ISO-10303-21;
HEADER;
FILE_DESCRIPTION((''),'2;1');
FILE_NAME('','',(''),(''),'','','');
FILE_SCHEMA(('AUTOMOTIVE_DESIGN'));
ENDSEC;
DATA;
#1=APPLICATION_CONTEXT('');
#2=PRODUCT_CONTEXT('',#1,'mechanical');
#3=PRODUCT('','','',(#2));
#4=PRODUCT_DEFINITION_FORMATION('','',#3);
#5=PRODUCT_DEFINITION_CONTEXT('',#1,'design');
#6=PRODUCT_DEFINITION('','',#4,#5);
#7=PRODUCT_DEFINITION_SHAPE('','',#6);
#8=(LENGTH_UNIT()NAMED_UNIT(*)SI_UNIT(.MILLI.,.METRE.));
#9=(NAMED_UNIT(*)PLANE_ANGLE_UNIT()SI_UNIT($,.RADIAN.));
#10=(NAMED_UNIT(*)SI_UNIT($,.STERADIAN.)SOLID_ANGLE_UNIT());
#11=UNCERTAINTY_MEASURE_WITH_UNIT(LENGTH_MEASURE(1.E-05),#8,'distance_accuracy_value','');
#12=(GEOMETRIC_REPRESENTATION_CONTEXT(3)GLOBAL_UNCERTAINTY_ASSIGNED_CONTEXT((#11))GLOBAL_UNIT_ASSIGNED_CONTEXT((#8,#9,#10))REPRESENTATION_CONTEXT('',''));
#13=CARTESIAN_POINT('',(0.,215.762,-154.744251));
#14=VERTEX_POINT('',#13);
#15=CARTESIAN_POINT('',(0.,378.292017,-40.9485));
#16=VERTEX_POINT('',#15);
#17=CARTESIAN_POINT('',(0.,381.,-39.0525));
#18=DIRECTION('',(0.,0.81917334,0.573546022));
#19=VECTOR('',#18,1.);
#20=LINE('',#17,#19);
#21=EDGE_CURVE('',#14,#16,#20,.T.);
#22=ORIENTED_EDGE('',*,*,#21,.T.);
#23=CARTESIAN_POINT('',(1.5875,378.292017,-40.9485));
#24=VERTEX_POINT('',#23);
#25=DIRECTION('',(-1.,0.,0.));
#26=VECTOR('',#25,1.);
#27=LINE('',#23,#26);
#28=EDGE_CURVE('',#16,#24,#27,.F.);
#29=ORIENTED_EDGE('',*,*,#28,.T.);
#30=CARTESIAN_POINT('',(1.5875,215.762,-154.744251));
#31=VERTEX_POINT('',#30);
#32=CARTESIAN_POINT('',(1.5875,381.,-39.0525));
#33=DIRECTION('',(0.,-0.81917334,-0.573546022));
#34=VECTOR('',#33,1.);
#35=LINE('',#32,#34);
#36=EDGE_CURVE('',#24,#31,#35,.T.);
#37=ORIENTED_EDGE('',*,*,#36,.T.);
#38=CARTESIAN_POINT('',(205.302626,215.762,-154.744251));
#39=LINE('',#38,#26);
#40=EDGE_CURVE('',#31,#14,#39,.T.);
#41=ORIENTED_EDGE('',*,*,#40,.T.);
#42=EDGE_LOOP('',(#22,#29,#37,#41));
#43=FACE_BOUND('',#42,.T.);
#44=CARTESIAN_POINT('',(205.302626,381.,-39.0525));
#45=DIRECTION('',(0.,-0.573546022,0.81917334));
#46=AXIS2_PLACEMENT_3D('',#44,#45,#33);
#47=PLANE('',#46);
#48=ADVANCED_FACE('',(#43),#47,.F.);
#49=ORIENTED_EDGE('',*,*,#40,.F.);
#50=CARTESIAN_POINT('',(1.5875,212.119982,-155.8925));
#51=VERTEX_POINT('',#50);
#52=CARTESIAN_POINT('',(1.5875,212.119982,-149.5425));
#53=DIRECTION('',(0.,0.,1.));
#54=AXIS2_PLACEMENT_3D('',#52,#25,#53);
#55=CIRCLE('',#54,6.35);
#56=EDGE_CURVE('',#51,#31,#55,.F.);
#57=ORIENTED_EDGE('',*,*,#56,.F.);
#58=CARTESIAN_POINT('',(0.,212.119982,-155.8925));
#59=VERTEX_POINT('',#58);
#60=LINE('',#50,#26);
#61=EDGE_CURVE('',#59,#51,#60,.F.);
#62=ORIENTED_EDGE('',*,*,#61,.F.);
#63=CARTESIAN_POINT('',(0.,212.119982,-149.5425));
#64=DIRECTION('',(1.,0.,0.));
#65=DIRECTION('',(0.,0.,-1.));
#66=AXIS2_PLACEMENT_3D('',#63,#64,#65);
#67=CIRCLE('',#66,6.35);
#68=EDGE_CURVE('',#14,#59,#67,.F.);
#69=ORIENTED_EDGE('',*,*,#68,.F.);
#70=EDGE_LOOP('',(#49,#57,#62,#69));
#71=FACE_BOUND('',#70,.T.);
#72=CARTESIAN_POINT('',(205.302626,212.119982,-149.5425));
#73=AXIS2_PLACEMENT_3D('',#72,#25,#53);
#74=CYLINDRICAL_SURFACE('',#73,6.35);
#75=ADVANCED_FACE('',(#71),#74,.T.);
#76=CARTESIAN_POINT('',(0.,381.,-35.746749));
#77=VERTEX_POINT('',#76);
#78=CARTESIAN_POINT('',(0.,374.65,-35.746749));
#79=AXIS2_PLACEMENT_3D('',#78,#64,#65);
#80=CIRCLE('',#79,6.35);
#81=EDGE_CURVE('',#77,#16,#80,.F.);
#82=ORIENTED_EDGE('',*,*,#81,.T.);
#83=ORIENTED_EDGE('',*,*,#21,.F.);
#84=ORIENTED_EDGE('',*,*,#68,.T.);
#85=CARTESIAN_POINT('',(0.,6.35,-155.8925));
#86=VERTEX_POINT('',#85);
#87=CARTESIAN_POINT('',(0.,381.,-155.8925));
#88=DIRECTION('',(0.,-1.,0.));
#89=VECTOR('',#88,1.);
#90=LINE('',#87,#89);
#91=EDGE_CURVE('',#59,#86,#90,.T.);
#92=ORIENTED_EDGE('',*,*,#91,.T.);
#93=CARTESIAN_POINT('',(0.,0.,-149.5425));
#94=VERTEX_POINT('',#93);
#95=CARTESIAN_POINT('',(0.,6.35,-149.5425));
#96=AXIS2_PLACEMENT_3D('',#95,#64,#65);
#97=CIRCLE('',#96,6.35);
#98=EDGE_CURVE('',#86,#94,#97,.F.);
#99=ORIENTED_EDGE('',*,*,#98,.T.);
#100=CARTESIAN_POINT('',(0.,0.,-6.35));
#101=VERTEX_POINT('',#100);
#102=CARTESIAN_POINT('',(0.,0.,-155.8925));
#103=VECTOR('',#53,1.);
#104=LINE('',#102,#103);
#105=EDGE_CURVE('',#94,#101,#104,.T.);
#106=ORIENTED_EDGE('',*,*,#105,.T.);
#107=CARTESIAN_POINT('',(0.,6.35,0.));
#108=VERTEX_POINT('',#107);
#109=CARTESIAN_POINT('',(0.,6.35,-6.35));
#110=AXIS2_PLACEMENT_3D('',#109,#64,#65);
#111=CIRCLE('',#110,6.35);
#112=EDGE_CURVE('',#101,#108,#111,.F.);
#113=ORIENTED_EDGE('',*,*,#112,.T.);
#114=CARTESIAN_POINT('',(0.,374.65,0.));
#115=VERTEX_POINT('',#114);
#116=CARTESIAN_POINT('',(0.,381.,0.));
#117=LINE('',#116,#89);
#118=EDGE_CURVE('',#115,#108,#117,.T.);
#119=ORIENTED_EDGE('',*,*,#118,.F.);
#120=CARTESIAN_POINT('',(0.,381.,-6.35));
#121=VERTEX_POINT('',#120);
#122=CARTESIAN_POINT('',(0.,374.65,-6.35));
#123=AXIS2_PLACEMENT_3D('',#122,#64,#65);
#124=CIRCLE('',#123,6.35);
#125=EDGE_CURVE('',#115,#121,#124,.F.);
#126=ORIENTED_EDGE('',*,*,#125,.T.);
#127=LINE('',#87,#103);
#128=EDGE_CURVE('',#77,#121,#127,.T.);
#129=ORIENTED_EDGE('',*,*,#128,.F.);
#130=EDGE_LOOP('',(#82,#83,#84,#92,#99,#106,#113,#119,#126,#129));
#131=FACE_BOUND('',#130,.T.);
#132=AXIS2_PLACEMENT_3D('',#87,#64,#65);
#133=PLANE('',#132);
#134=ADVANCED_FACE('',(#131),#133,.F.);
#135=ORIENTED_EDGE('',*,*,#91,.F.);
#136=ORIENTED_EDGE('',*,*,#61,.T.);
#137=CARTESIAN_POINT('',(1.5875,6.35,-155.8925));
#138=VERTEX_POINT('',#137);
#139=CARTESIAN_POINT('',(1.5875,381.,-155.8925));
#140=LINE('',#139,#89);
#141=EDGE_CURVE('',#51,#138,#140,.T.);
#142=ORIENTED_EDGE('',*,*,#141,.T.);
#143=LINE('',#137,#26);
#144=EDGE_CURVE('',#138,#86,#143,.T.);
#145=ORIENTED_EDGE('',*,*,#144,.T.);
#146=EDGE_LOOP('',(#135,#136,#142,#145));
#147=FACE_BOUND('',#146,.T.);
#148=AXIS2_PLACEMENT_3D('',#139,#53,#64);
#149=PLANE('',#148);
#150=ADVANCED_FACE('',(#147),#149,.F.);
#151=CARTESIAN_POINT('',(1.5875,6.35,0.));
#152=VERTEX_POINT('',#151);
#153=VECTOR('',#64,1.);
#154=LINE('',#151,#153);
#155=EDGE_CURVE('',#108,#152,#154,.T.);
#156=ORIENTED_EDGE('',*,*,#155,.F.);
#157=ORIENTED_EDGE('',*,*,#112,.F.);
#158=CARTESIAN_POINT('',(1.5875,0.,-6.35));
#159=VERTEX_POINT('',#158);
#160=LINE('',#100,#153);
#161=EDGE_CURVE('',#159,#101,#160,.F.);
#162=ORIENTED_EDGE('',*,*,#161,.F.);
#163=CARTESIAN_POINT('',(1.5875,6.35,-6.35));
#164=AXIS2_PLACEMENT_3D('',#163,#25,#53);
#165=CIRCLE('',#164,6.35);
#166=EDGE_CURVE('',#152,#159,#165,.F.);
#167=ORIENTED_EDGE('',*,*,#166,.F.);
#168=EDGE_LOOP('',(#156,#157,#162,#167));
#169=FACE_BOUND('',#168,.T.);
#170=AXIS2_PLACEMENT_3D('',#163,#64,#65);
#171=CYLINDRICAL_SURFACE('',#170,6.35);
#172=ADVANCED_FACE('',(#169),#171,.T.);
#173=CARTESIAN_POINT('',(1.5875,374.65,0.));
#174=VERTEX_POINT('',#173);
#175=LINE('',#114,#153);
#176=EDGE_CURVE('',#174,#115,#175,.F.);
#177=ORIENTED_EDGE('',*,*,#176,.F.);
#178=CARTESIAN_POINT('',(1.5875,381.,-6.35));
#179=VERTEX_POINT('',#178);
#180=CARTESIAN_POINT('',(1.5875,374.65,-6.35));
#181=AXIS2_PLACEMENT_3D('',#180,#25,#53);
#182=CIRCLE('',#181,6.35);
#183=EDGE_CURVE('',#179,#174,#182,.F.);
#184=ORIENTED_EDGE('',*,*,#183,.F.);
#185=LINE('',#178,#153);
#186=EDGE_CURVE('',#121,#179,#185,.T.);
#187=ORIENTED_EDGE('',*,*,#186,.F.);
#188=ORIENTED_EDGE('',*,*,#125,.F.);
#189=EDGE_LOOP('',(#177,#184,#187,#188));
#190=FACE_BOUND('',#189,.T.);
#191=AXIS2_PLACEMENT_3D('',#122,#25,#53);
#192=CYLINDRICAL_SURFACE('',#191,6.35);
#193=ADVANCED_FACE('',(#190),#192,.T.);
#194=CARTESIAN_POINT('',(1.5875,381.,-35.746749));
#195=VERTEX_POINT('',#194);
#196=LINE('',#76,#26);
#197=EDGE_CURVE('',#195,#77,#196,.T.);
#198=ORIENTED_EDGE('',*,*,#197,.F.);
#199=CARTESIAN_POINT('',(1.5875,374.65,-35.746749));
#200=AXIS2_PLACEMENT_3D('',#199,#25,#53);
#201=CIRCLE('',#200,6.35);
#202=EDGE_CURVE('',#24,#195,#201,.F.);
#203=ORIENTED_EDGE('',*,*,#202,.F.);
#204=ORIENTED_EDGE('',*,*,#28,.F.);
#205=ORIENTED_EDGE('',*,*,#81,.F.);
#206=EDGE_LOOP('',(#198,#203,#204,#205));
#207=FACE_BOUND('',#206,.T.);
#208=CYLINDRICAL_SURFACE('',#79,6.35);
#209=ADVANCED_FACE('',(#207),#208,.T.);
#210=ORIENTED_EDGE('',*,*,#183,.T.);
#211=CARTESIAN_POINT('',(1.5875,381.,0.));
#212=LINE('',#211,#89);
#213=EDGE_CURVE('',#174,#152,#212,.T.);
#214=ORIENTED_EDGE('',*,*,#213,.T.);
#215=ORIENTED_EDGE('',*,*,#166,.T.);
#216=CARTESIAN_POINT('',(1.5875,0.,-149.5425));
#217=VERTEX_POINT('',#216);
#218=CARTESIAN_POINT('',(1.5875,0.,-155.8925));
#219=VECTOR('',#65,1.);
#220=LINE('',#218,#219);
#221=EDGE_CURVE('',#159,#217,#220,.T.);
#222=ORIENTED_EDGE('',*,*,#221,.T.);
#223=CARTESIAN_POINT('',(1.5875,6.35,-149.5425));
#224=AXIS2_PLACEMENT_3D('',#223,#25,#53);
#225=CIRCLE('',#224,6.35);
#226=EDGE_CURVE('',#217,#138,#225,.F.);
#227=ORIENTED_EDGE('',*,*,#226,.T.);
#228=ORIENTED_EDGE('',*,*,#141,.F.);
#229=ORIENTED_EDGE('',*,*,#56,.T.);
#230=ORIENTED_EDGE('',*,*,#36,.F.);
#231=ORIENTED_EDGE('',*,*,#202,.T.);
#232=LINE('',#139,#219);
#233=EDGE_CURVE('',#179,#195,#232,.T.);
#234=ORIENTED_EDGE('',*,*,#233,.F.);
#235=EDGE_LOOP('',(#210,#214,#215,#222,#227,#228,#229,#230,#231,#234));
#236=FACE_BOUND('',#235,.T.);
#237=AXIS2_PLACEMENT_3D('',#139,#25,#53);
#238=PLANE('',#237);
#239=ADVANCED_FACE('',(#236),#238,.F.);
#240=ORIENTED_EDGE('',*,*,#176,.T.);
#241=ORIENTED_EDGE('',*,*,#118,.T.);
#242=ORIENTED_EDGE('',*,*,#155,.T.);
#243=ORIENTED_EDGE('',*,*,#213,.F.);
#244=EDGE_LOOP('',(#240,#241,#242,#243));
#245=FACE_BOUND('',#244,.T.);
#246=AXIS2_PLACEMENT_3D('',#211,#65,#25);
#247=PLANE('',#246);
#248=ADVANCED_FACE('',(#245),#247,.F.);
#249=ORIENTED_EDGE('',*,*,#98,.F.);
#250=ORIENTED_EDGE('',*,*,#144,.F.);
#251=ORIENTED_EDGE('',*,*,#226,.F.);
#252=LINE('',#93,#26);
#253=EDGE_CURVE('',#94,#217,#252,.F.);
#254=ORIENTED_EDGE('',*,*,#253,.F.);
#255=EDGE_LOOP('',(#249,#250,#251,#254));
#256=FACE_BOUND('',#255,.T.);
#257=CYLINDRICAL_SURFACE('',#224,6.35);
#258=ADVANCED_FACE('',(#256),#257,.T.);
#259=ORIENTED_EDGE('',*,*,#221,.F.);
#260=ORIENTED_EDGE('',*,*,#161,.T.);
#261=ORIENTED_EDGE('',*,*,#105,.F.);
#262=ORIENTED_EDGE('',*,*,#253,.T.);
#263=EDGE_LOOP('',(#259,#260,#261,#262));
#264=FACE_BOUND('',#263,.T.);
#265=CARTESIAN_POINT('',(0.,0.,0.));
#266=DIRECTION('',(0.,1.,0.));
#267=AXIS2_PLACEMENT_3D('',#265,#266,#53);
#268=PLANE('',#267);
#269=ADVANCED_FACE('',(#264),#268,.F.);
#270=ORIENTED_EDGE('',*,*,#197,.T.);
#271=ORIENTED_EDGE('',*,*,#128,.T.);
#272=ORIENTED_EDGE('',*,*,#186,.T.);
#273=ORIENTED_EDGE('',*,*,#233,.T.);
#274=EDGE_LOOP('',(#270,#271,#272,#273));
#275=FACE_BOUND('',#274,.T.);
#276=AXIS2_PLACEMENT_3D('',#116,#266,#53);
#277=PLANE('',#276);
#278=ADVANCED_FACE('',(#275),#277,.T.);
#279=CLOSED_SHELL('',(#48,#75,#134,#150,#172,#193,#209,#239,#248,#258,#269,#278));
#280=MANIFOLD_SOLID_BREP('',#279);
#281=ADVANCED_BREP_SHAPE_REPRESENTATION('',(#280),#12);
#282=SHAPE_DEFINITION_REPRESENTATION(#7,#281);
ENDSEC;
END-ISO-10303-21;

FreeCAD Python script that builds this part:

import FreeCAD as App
import Part
import Sketcher
from FreeCAD import Vector
Q = App.Units.Quantity


def edges_at(feature, points):
    """Names of the edges that pass closest to the given points."""
    edges = feature.Shape.Edges
    near = lambda p: min(range(len(edges)), key=lambda i: edges[i].distToShape(Part.Vertex(*p))[0])
    return sorted({f"Edge{near(p) + 1}" for p in points})


def add_polygon(sketch, points):
    """Adds a closed chain of lines whose ends are joined by coincident constraints."""
    first, n = sketch.GeometryCount, len(points)
    for a, b in zip(points, points[1:] + points[:1]):
        sketch.addGeometry(Part.LineSegment(App.Vector(*a, 0), App.Vector(*b, 0)), False)
    for i in range(n):
        sketch.addConstraint(Sketcher.Constraint("Coincident", first + i, 2, first + (i + 1) % n, 1))

doc = App.newDocument("Part")
body = doc.addObject("PartDesign::Body", "Body")

# Sketch on XZ plane
sketch1 = body.newObject("Sketcher::SketchObject", "Sketch")
sketch1.AttachmentSupport = (doc.getObject("XZ_Plane"), [""])
sketch1.MapMode = "FlatFace"
add_polygon(sketch1, [(0, -155.9), (0, 0), (1.6, 0), (1.6, -155.9)])  # lines 0-3
sketch1.addConstraint([
    Sketcher.Constraint("Vertical", 0),
    Sketcher.Constraint("Horizontal", 1),
    Sketcher.Constraint("Vertical", 2),
    Sketcher.Constraint("Horizontal", 3),
    Sketcher.Constraint("Coincident", 0, 2, -1, 1),
    Sketcher.Constraint("DistanceX", 1, 1, 1, 2, Q("0.0625 in")),
    Sketcher.Constraint("DistanceY", 0, 1, 0, 2, Q("6.1375 in")),
])
pad1 = body.newObject("PartDesign::Pad", "Pad")
pad1.Profile = sketch1
pad1.Length = Q("15 in")
pad1.Reversed = True

# Sketch on YZ plane
sketch2 = body.newObject("Sketcher::SketchObject", "Sketch001")
sketch2.AttachmentSupport = (doc.getObject("YZ_Plane"), [""])
sketch2.MapMode = "FlatFace"
add_polygon(sketch2, [(214, -156), (381, -39), (381, -156)])  # lines 0-2
sketch2.addConstraint([
    Sketcher.Constraint("Vertical", 1),
    Sketcher.Constraint("Horizontal", 2),
    Sketcher.Constraint("DistanceY", 1, 2, 1, 1, Q("4.6 in")),
    Sketcher.Constraint("DistanceX", -1, 1, 0, 2, Q("15 in")),
    Sketcher.Constraint("DistanceX", 2, 2, 2, 1, Q("6.57 in")),
    Sketcher.Constraint("DistanceY", 0, 2, -1, 1, Q("1.5375 in")),
])
pocket1 = body.newObject("PartDesign::Pocket", "Pocket")
pocket1.Profile = sketch2
pocket1.Length = Q("0.0625 in")
pocket1.Reversed = True
doc.recompute()

fillet = body.newObject("PartDesign::Fillet", "Fillet")
fillet.Base = (pocket1, edges_at(pocket1, [
    (0.794, 381, -39.053),
    (0.794, 214.122, -155.893),
    (0.794, 381, 0),
    (0.794, 0, -155.893),
    (0.794, 0, 0),
]))
fillet.Radius = Q("0.25 in")

doc.recompute()
